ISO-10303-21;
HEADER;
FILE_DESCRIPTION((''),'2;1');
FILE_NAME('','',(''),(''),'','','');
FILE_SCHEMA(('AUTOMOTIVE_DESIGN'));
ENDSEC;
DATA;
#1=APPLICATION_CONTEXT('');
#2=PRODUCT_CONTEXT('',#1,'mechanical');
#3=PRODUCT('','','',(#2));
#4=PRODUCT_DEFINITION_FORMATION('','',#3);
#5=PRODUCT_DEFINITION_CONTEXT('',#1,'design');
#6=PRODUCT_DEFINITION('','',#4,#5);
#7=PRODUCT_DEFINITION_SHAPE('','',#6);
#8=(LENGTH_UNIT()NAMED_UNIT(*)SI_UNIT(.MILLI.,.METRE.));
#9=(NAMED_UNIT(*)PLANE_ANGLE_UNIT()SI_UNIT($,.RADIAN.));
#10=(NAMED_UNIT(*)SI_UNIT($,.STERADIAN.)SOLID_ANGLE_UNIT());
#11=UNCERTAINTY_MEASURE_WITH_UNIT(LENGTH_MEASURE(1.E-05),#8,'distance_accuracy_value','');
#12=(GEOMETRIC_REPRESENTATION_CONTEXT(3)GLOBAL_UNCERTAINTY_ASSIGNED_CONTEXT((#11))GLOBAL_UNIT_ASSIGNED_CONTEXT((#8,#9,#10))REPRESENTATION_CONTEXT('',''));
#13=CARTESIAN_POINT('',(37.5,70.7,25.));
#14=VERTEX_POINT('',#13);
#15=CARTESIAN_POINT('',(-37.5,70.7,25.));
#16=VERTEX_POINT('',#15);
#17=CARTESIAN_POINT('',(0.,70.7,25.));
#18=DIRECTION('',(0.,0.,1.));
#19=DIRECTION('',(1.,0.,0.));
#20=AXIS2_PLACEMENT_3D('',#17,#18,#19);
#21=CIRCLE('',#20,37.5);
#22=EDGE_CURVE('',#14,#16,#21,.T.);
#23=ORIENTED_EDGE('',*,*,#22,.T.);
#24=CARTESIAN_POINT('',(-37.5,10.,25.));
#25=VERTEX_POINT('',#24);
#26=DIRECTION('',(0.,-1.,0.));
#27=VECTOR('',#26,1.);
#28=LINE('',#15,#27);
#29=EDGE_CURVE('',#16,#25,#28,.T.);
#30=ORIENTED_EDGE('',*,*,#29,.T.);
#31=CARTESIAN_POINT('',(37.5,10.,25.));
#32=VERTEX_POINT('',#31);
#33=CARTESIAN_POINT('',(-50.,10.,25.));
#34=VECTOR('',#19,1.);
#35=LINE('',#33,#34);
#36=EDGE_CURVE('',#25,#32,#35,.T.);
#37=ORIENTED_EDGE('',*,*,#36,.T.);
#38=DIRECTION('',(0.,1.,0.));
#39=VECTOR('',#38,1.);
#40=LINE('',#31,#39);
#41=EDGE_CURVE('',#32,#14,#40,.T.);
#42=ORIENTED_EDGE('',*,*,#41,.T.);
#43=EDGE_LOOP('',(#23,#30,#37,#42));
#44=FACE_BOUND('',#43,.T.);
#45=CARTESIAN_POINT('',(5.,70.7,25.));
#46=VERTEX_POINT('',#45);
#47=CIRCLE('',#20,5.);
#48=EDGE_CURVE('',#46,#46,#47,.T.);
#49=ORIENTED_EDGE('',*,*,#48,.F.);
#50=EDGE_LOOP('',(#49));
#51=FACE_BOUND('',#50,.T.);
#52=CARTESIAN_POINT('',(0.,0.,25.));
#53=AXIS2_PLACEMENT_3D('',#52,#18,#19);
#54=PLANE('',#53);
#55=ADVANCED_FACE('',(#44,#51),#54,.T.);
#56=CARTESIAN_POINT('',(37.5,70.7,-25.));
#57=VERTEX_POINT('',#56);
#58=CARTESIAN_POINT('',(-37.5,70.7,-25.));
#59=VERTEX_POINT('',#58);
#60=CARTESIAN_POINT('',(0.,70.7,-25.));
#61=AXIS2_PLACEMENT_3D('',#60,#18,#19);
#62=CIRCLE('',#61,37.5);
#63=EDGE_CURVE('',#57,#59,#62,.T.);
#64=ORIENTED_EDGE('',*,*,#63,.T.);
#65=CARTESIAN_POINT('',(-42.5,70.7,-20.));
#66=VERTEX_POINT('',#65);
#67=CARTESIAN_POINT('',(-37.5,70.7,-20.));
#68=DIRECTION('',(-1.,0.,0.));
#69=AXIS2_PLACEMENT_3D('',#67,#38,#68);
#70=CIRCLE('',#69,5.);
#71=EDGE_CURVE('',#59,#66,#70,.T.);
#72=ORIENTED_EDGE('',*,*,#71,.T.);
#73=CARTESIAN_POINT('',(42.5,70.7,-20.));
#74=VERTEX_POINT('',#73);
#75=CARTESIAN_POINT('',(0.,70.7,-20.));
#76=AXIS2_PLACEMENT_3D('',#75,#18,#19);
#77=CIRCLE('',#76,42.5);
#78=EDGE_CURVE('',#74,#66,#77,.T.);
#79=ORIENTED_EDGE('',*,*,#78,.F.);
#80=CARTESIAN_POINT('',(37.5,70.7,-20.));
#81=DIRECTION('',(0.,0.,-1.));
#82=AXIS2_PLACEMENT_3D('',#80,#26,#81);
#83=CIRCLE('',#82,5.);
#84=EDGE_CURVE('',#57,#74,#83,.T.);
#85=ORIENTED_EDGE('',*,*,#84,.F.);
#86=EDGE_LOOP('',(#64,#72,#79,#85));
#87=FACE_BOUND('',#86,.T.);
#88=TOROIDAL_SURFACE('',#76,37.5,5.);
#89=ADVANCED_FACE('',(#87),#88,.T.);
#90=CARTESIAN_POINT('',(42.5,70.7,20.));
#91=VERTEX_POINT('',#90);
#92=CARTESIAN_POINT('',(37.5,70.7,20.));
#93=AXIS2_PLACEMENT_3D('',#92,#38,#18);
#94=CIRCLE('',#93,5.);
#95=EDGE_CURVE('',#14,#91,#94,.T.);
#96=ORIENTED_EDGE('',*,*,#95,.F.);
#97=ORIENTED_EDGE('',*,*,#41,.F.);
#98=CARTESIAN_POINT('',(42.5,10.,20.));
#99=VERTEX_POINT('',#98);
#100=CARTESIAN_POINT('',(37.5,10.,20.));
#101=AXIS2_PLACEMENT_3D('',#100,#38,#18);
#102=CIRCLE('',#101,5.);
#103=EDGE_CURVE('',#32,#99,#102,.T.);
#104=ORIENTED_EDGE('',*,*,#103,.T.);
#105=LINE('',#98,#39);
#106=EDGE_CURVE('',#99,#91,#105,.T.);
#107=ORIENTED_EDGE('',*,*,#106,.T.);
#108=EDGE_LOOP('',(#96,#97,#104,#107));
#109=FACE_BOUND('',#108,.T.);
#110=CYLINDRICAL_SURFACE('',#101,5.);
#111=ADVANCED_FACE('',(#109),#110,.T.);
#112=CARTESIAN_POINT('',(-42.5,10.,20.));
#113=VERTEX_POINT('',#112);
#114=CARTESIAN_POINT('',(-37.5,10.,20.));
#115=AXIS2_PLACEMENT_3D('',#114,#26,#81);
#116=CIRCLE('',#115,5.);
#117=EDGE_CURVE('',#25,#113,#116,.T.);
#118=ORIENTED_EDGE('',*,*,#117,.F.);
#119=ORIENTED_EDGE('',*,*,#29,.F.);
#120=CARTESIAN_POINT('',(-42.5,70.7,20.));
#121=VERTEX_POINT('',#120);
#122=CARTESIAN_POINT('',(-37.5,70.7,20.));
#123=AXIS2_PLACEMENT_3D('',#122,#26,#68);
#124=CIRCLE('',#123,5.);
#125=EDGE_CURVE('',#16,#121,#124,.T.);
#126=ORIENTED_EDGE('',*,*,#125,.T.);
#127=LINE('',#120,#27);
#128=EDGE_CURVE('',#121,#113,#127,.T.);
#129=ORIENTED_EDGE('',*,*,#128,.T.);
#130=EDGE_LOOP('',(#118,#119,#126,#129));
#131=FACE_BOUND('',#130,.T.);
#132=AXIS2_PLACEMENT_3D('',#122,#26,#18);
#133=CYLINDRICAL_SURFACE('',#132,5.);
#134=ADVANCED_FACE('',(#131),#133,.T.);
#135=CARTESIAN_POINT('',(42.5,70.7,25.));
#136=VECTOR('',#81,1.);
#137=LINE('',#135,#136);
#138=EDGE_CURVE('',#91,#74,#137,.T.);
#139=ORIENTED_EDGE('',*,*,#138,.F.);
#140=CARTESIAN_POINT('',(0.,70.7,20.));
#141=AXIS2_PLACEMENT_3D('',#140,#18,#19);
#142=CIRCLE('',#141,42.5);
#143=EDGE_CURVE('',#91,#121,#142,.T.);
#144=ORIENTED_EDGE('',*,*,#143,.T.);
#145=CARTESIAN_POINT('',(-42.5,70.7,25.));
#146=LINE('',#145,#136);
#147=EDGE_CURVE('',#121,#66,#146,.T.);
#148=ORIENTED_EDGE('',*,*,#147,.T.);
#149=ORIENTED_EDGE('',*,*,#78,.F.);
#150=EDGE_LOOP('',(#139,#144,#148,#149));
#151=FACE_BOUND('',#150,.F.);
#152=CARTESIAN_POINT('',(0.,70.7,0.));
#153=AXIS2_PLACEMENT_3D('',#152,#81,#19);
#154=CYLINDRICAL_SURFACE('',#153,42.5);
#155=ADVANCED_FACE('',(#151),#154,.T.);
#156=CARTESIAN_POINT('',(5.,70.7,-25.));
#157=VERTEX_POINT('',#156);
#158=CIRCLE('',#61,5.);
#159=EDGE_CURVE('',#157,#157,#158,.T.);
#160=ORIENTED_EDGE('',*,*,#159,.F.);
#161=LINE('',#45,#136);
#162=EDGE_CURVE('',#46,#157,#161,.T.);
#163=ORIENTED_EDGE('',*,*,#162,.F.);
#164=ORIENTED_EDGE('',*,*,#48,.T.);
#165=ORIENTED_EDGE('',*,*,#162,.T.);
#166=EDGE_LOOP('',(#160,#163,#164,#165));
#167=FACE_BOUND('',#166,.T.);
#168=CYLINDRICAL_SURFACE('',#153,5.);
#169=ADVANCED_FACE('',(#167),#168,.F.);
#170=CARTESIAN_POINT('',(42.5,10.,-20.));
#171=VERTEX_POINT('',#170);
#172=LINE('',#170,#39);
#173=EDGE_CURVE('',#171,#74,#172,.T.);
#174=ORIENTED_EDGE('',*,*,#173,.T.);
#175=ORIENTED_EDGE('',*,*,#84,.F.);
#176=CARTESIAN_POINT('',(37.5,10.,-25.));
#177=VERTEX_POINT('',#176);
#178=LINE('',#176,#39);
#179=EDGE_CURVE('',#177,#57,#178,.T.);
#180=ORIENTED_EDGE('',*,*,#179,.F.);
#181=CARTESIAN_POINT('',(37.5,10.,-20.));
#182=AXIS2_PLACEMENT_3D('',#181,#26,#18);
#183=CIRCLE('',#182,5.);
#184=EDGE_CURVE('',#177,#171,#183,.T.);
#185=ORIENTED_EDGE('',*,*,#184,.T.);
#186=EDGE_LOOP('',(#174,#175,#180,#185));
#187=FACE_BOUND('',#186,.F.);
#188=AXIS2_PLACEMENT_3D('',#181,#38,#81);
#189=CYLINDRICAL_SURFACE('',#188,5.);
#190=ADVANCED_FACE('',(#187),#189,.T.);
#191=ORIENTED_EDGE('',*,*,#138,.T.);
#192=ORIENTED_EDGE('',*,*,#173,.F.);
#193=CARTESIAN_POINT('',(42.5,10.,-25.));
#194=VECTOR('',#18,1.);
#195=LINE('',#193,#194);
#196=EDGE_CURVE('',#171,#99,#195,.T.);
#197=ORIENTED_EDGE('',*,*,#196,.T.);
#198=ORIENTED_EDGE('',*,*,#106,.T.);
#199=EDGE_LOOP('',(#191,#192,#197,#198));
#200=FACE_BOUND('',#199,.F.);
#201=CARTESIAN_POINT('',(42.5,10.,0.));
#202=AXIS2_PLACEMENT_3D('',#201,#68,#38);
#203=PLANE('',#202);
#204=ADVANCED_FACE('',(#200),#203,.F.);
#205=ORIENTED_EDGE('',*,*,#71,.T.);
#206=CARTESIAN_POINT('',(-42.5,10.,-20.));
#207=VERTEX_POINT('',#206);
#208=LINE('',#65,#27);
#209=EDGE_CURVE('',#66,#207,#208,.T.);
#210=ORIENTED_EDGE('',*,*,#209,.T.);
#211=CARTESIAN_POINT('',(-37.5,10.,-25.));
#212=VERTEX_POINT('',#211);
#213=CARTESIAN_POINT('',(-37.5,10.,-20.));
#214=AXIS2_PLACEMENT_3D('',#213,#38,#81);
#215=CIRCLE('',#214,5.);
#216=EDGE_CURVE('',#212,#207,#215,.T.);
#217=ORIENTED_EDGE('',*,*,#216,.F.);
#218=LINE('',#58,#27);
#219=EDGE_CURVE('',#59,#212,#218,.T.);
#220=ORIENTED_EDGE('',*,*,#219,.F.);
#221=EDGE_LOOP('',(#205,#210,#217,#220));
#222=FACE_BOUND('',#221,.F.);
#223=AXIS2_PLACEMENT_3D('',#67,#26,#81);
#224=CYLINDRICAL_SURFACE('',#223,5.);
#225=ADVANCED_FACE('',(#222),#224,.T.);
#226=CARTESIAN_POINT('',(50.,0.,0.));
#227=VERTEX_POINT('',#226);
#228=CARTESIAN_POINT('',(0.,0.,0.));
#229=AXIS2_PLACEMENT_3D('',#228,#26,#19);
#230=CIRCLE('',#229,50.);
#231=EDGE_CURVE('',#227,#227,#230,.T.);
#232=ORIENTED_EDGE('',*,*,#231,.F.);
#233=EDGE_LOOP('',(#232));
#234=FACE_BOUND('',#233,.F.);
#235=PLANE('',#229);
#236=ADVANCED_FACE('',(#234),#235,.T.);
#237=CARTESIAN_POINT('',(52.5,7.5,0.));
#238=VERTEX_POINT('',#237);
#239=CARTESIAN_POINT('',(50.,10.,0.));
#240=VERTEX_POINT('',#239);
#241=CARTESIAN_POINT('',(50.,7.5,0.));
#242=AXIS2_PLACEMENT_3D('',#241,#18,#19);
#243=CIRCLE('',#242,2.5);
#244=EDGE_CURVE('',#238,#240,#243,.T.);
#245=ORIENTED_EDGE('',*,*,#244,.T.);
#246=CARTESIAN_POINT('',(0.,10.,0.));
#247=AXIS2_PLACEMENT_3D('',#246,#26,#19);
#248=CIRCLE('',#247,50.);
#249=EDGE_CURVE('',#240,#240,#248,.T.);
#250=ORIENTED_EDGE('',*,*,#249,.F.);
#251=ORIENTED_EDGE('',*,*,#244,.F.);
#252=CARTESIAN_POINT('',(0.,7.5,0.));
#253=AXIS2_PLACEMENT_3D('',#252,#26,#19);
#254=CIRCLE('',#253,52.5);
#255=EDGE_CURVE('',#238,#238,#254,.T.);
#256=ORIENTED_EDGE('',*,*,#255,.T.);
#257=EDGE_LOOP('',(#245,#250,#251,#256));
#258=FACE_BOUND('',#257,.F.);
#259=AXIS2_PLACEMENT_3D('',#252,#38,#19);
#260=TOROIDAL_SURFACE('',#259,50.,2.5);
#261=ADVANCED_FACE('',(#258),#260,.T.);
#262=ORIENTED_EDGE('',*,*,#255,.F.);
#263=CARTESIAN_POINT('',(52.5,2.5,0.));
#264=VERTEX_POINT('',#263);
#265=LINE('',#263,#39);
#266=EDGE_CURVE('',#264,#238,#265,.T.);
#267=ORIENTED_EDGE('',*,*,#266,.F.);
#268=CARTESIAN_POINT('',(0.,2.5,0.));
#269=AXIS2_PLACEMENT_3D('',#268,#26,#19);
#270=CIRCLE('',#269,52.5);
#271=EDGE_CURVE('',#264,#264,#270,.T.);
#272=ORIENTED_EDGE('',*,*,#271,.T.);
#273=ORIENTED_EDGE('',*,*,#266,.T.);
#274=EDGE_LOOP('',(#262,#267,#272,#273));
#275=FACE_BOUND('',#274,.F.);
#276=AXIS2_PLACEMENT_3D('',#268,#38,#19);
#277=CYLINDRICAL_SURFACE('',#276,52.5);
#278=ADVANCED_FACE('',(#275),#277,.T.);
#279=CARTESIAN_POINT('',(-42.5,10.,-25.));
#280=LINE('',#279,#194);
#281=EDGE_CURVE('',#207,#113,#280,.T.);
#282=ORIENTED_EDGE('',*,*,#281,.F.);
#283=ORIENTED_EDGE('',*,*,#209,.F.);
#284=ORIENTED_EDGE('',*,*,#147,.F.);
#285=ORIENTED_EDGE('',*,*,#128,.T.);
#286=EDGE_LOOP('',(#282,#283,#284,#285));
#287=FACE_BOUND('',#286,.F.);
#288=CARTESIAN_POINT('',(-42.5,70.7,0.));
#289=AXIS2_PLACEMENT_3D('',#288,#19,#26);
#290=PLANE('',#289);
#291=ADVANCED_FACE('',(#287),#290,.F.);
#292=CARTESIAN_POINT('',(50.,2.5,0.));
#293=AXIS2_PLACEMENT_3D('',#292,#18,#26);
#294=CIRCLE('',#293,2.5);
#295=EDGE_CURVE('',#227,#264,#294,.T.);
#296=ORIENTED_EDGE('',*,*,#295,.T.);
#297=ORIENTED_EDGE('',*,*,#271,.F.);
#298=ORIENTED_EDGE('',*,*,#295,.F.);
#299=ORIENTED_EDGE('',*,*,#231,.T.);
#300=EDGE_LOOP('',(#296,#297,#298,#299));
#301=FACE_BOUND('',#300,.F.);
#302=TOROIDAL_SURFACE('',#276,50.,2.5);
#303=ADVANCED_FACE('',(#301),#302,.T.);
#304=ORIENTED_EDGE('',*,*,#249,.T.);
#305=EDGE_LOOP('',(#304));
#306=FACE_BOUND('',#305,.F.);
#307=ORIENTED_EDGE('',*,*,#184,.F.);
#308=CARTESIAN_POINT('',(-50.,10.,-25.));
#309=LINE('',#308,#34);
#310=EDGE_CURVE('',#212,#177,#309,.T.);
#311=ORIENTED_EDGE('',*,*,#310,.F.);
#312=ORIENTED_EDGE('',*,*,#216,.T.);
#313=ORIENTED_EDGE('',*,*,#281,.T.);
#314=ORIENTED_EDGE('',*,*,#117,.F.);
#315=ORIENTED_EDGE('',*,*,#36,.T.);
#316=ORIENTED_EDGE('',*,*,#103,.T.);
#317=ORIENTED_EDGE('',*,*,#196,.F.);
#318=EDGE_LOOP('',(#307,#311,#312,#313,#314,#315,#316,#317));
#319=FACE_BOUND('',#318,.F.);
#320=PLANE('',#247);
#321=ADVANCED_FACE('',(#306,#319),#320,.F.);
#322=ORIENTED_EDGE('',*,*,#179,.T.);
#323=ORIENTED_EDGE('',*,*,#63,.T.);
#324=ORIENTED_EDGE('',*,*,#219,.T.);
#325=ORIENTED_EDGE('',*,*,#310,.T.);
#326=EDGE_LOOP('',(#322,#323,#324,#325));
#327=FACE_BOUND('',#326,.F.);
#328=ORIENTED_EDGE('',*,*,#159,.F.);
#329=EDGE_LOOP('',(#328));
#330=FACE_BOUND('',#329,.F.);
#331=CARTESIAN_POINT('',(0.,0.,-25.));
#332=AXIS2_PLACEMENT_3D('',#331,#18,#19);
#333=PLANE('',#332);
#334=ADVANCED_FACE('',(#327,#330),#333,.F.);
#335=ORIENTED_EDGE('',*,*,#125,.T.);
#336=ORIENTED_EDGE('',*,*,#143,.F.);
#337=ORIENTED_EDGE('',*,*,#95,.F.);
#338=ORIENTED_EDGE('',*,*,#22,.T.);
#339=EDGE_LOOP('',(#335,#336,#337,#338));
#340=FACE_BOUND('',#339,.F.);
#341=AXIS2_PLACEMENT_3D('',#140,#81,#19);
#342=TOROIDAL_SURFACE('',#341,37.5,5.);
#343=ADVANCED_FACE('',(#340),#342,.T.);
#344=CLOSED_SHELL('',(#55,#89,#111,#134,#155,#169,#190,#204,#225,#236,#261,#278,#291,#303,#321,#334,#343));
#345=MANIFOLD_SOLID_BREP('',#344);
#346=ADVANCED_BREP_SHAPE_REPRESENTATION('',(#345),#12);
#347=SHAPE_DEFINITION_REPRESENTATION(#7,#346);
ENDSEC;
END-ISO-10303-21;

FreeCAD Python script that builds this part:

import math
import FreeCAD as App
import Part
import Sketcher


def edges_at(feature, points):
    """Names of the edges that pass closest to the given points."""
    edges = feature.Shape.Edges
    near = lambda p: min(range(len(edges)), key=lambda i: edges[i].distToShape(Part.Vertex(*p))[0])
    return sorted({f"Edge{near(p) + 1}" for p in points})

doc = App.newDocument("Part")
body = doc.addObject("PartDesign::Body", "Body")

sketch1 = body.newObject("Sketcher::SketchObject", "Sketch")
sketch1.AttachmentSupport = (doc.getObject("XY_Plane"), [""])
sketch1.MapMode = "FlatFace"
sketch1.addGeometry(Part.LineSegment(App.Vector(0, 10, 0), App.Vector(0, 0, 0)), False)
sketch1.addGeometry(Part.LineSegment(App.Vector(0, 0, 0), App.Vector(50, 0, 0)), False)
sketch1.addGeometry(Part.ArcOfCircle(Part.Circle(App.Vector(50, 2.5, 0), App.Vector(0, 0, 1), 2.5), math.radians(-90), math.radians(0)), False)
sketch1.addGeometry(Part.LineSegment(App.Vector(52.5, 2.5, 0), App.Vector(52.5, 7.5, 0)), False)
sketch1.addGeometry(Part.ArcOfCircle(Part.Circle(App.Vector(50, 7.5, 0), App.Vector(0, 0, 1), 2.5), math.radians(0), math.radians(90)), False)
sketch1.addGeometry(Part.LineSegment(App.Vector(50, 10, 0), App.Vector(0, 10, 0)), False)
sketch1.addConstraint(Sketcher.Constraint("Coincident", 0, 2, 1, 1))
sketch1.addConstraint(Sketcher.Constraint("Tangent", 1, 2, 2, 1))
sketch1.addConstraint(Sketcher.Constraint("Tangent", 2, 2, 3, 1))
sketch1.addConstraint(Sketcher.Constraint("Tangent", 3, 2, 4, 1))
sketch1.addConstraint(Sketcher.Constraint("Tangent", 4, 2, 5, 1))
sketch1.addConstraint(Sketcher.Constraint("Coincident", 5, 2, 0, 1))
sketch1.addConstraint(Sketcher.Constraint("Vertical", 0))
sketch1.addConstraint(Sketcher.Constraint("Horizontal", 1))
sketch1.addConstraint(Sketcher.Constraint("Vertical", 3))
sketch1.addConstraint(Sketcher.Constraint("Horizontal", 5))
sketch1.addConstraint(Sketcher.Constraint("Coincident", 0, 2, -1, 1))
sketch1.addConstraint(Sketcher.Constraint("Equal", 2, 4))
sketch1.addConstraint(Sketcher.Constraint("Radius", 2, 2.5))
sketch1.addConstraint(Sketcher.Constraint("DistanceY", 0, 2, 0, 1, 10.0))
sketch1.addConstraint(Sketcher.Constraint("DistanceX", 1, 1, 1, 2, 50.0))
revolution = body.newObject("PartDesign::Revolution", "Revolution")
revolution.Profile = sketch1
revolution.ReferenceAxis = (sketch1, ["V_Axis"])
revolution.Angle = 360

sketch2 = body.newObject("Sketcher::SketchObject", "Sketch001")
sketch2.AttachmentSupport = (doc.getObject("XY_Plane"), [""])
sketch2.MapMode = "FlatFace"
sketch2.addGeometry(Part.LineSegment(App.Vector(-42.5, 70.7, 0), App.Vector(-42.5, 10, 0)), False)
sketch2.addGeometry(Part.LineSegment(App.Vector(-42.5, 10, 0), App.Vector(42.5, 10, 0)), False)
sketch2.addGeometry(Part.LineSegment(App.Vector(42.5, 10, 0), App.Vector(42.5, 70.7, 0)), False)
sketch2.addGeometry(Part.ArcOfCircle(Part.Circle(App.Vector(0, 70.7, 0), App.Vector(0, 0, 1), 42.5), math.radians(0), math.radians(180)), False)
sketch2.addGeometry(Part.Circle(App.Vector(0, 70.7, 0), App.Vector(0, 0, 1), 5), False)
sketch2.addConstraint(Sketcher.Constraint("Coincident", 0, 2, 1, 1))
sketch2.addConstraint(Sketcher.Constraint("Coincident", 1, 2, 2, 1))
sketch2.addConstraint(Sketcher.Constraint("Tangent", 2, 2, 3, 1))
sketch2.addConstraint(Sketcher.Constraint("Tangent", 3, 2, 0, 1))
sketch2.addConstraint(Sketcher.Constraint("Vertical", 0))
sketch2.addConstraint(Sketcher.Constraint("Horizontal", 1))
sketch2.addConstraint(Sketcher.Constraint("Vertical", 2))
sketch2.addConstraint(Sketcher.Constraint("Coincident", 4, 3, 3, 3))
sketch2.addConstraint(Sketcher.Constraint("PointOnObject", 3, 3, -2))
sketch2.addConstraint(Sketcher.Constraint("Diameter", 4, 10.0))
sketch2.addConstraint(Sketcher.Constraint("Radius", 3, 42.5))
sketch2.addConstraint(Sketcher.Constraint("DistanceY", -1, 1, 0, 2, 10.0))
sketch2.addConstraint(Sketcher.Constraint("DistanceY", -1, 1, 3, 3, 70.7))
pad1 = body.newObject("PartDesign::Pad", "Pad")
pad1.Profile = sketch2
pad1.Length = 50
pad1.Midplane = True
doc.recompute()

fillet = body.newObject("PartDesign::Fillet", "Fillet")
fillet.Base = (pad1, edges_at(pad1, [
    (-42.5, 40.35, 25),
    (42.5, 40.35, 25),
    (0, 113.2, 25),
    (42.5, 40.35, -25),
    (-42.5, 40.35, -25),
    (0, 113.2, -25),
]))
fillet.Radius = 5

doc.recompute()
